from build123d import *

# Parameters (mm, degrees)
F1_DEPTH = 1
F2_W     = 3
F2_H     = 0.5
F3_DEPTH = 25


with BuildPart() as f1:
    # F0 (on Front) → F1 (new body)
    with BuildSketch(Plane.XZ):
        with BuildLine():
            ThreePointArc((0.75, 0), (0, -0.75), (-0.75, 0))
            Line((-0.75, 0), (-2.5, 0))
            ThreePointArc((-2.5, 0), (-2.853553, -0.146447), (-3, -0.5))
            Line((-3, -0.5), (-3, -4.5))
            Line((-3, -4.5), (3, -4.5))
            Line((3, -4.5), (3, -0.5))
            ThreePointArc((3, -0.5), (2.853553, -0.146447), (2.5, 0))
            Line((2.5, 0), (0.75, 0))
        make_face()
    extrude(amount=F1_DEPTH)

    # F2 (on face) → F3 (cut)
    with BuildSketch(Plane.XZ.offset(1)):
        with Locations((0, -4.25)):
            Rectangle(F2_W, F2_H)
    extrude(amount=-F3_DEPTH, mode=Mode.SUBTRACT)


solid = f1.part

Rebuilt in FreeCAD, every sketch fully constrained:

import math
import FreeCAD as App
import Part
import Sketcher
from FreeCAD import Vector

doc = App.newDocument("Part")
body = doc.addObject("PartDesign::Body", "Body")

sketch1 = body.newObject("Sketcher::SketchObject", "Sketch")
sketch1.AttachmentSupport = (doc.getObject("XZ_Plane"), [""])
sketch1.MapMode = "FlatFace"
sketch1.addGeometry([
    Part.ArcOfCircle(Part.Circle(Vector(0, 0, 0), Vector(0, 0, 1), 0.8), math.radians(180), math.radians(360)),
    Part.LineSegment(Vector(-0.8, 0, 0), Vector(-2.5, 0, 0)),
    Part.ArcOfCircle(Part.Circle(Vector(-2.5, -0.5, 0), Vector(0, 0, 1), 0.5), math.radians(90), math.radians(180)),
    Part.LineSegment(Vector(-3, -0.5, 0), Vector(-3, -4.5, 0)),
    Part.LineSegment(Vector(-3, -4.5, 0), Vector(3, -4.5, 0)),
    Part.LineSegment(Vector(3, -4.5, 0), Vector(3, -0.5, 0)),
    Part.ArcOfCircle(Part.Circle(Vector(2.5, -0.5, 0), Vector(0, 0, 1), 0.5), math.radians(0), math.radians(90)),
    Part.LineSegment(Vector(2.5, 0, 0), Vector(0.8, 0, 0)),
], False)
sketch1.addConstraint([
    Sketcher.Constraint("Coincident", 0, 1, 1, 1),
    Sketcher.Constraint("Coincident", 1, 2, 2, 1),
    Sketcher.Constraint("Coincident", 2, 2, 3, 1),
    Sketcher.Constraint("Coincident", 3, 2, 4, 1),
    Sketcher.Constraint("Coincident", 4, 2, 5, 1),
    Sketcher.Constraint("Coincident", 5, 2, 6, 1),
    Sketcher.Constraint("Coincident", 6, 2, 7, 1),
    Sketcher.Constraint("Coincident", 7, 2, 0, 2),
    Sketcher.Constraint("Horizontal", 1),
    Sketcher.Constraint("Vertical", 3),
    Sketcher.Constraint("Horizontal", 4),
    Sketcher.Constraint("Vertical", 5),
    Sketcher.Constraint("Horizontal", 7),
    Sketcher.Constraint("Coincident", 0, 3, -1, 1),
    Sketcher.Constraint("Equal", 2, 6),
    Sketcher.Constraint("Symmetric", 1, 2, 6, 2, -1, 1),
    Sketcher.Constraint("Symmetric", 2, 3, 6, 3, -2),
    Sketcher.Constraint("Horizontal", 6, 3, 2, 2),
    Sketcher.Constraint("Horizontal", 2, 2, 5, 2),
    Sketcher.Constraint("Vertical", 2, 3, 1, 2),
    Sketcher.Constraint("Radius", 2, 0.500001),
    Sketcher.Constraint("DistanceX", 4, 1, 4, 2, 6.0),
    Sketcher.Constraint("DistanceY", 3, 2, 3, 1, 4.0),
    Sketcher.Constraint("Radius", 0, 0.75),
])
pad1 = body.newObject("PartDesign::Pad", "Pad")
pad1.Profile = sketch1
pad1.Length = 1

sketch2 = body.newObject("Sketcher::SketchObject", "Sketch001")
sketch2.AttachmentSupport = (doc.getObject("XZ_Plane"), [""])
sketch2.MapMode = "FlatFace"
sketch2.AttachmentOffset = App.Placement(Vector(0, 0, 1), App.Rotation())
sketch2.addGeometry([
    Part.LineSegment(Vector(-1.5, -4, 0), Vector(-1.5, -4.5, 0)),
    Part.LineSegment(Vector(-1.5, -4.5, 0), Vector(1.5, -4.5, 0)),
    Part.LineSegment(Vector(1.5, -4.5, 0), Vector(1.5, -4, 0)),
    Part.LineSegment(Vector(1.5, -4, 0), Vector(-1.5, -4, 0)),
], False)
sketch2.addConstraint([
    Sketcher.Constraint("Coincident", 0, 2, 1, 1),
    Sketcher.Constraint("Coincident", 1, 2, 2, 1),
    Sketcher.Constraint("Coincident", 2, 2, 3, 1),
    Sketcher.Constraint("Coincident", 3, 2, 0, 1),
    Sketcher.Constraint("Vertical", 0),
    Sketcher.Constraint("Horizontal", 1),
    Sketcher.Constraint("Vertical", 2),
    Sketcher.Constraint("Horizontal", 3),
    Sketcher.Constraint("DistanceX", 1, 1, 1, 2, 3.0),
    Sketcher.Constraint("DistanceY", 0, 2, 0, 1, 0.5),
    Sketcher.Constraint("DistanceY", 2, 2, -1, 1, 4.0),
    Sketcher.Constraint("DistanceX", 0, 2, -1, 1, 1.5),
])
pocket1 = body.newObject("PartDesign::Pocket", "Pocket")
pocket1.Profile = sketch2
pocket1.Length = 25

doc.recompute()
